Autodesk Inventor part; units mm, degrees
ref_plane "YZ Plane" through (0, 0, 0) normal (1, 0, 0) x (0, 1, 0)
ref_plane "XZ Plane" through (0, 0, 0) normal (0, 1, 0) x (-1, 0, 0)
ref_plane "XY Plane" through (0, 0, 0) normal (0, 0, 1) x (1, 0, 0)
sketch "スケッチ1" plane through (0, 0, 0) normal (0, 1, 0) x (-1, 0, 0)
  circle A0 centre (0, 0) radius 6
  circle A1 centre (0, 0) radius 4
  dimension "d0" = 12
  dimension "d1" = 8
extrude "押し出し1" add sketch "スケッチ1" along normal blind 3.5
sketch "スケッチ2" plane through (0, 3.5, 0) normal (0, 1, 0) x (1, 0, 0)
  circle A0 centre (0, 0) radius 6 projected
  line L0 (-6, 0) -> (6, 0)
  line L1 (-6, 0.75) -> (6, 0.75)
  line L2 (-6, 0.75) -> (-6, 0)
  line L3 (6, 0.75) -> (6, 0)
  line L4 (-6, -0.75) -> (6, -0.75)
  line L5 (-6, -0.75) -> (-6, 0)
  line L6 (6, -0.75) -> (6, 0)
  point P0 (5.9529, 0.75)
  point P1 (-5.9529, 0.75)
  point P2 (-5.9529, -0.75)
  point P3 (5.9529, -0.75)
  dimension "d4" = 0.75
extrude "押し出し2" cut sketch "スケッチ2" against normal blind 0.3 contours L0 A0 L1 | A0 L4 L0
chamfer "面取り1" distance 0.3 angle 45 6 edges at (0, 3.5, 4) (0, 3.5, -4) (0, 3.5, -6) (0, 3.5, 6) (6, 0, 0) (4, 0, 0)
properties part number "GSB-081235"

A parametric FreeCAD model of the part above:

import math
import FreeCAD as App
import Part
import Sketcher
from FreeCAD import Vector
Q = App.Units.Quantity


def edges_at(feature, points):
    """Names of the edges that pass closest to the given points."""
    edges = feature.Shape.Edges
    near = lambda p: min(range(len(edges)), key=lambda i: edges[i].distToShape(Part.Vertex(*p))[0])
    return sorted({f"Edge{near(p) + 1}" for p in points})

doc = App.newDocument("Part")
params = doc.addObject("Spreadsheet::Sheet", "Params")
for row, (alias, value) in enumerate([
    ("sketch1_diameter", "12 mm"),
    ("sketch1_diameter2", "8 mm"),
    ("pad1_length", "3.5 mm"),
    ("sketch2_radius", "6 mm"),
    ("pocket1_length", "0.3 mm"),
    ("chamfer_size", "0.3 mm"),
], start=1):
    params.set(f"A{row}", alias)
    params.set(f"B{row}", "=" + value)
    params.setAlias(f"B{row}", alias)

body = doc.addObject("PartDesign::Body", "Body")

sketch1 = doc.addObject("Sketcher::SketchObject", "Sketch")
body.addObject(sketch1)
sketch1.AttachmentSupport = (doc.XZ_Plane, [""])
sketch1.MapMode = "FlatFace"
sketch1.addGeometry(Part.Circle(Vector(0, 0, 0), Vector(0, 0, 1), 6), False)
sketch1.addGeometry(Part.Circle(Vector(0, 0, 0), Vector(0, 0, 1), 4), False)
sketch1.addConstraint(Sketcher.Constraint("Coincident", 0, 3, -1, 1))
sketch1.addConstraint(Sketcher.Constraint("Coincident", 1, 3, -1, 1))
sketch1.addConstraint(Sketcher.Constraint("Diameter", 0, Q("12 mm")))
sketch1.addConstraint(Sketcher.Constraint("Diameter", 1, Q("8 mm")))
sketch1.setExpression("Constraints[2]", "Params.sketch1_diameter")
sketch1.setExpression("Constraints[3]", "Params.sketch1_diameter2")
pad1 = doc.addObject("PartDesign::Pad", "Pad")
body.addObject(pad1)
pad1.Profile = sketch1
pad1.setExpression("Length", "Params.pad1_length")
pad1.Reversed = True

sketch2 = doc.addObject("Sketcher::SketchObject", "Sketch001")
body.addObject(sketch2)
sketch2.AttachmentSupport = (doc.XZ_Plane, [""])
sketch2.MapMode = "FlatFace"
sketch2.AttachmentOffset = App.Placement(Vector(0, 0, -3.5), App.Rotation())
sketch2.addGeometry(Part.ArcOfCircle(Part.Circle(Vector(0, 0, 0), Vector(0, 0, 1), 6), math.radians(172.82), math.radians(187.18)), False)
sketch2.addGeometry(Part.LineSegment(Vector(-6, 0.8, 0), Vector(6, 0.8, 0)), False)
sketch2.addGeometry(Part.ArcOfCircle(Part.Circle(Vector(0, 0, 0), Vector(0, 0, 1), 6), math.radians(-7.18), math.radians(7.18)), False)
sketch2.addGeometry(Part.LineSegment(Vector(6, -0.8, 0), Vector(-6, -0.8, 0)), False)
sketch2.addConstraint(Sketcher.Constraint("Coincident", 0, 1, 1, 1))
sketch2.addConstraint(Sketcher.Constraint("Coincident", 1, 2, 2, 2))
sketch2.addConstraint(Sketcher.Constraint("Coincident", 2, 1, 3, 1))
sketch2.addConstraint(Sketcher.Constraint("Coincident", 3, 2, 0, 2))
sketch2.addConstraint(Sketcher.Constraint("Horizontal", 1))
sketch2.addConstraint(Sketcher.Constraint("Horizontal", 3))
sketch2.addConstraint(Sketcher.Constraint("Coincident", 0, 3, -1, 1))
sketch2.addConstraint(Sketcher.Constraint("Coincident", 2, 3, -1, 1))
sketch2.addConstraint(Sketcher.Constraint("Equal", 0, 2))
sketch2.addConstraint(Sketcher.Constraint("Vertical", 1, 2, 2, 1))
sketch2.addConstraint(Sketcher.Constraint("Radius", 0, Q("6 mm")))
sketch2.addConstraint(Sketcher.Constraint("DistanceY", -1, 1, 0, 1, Q("0.75 mm")))
sketch2.setExpression("Constraints[10]", "Params.sketch2_radius")
pocket1 = doc.addObject("PartDesign::Pocket", "Pocket")
body.addObject(pocket1)
pocket1.Profile = sketch2
pocket1.setExpression("Length", "Params.pocket1_length")
pocket1.Reversed = True
doc.recompute()

chamfer = doc.addObject("PartDesign::Chamfer", "Chamfer")
body.addObject(chamfer)
chamfer.Base = (pocket1, edges_at(pocket1, [
    (0, 3.5, 4),
    (0, 3.5, -4),
    (0, 3.5, -6),
    (0, 3.5, 6),
    (6, 0, 0),
    (4, 0, 0),
]))
chamfer.setExpression("Size", "Params.chamfer_size")

doc.recompute()
